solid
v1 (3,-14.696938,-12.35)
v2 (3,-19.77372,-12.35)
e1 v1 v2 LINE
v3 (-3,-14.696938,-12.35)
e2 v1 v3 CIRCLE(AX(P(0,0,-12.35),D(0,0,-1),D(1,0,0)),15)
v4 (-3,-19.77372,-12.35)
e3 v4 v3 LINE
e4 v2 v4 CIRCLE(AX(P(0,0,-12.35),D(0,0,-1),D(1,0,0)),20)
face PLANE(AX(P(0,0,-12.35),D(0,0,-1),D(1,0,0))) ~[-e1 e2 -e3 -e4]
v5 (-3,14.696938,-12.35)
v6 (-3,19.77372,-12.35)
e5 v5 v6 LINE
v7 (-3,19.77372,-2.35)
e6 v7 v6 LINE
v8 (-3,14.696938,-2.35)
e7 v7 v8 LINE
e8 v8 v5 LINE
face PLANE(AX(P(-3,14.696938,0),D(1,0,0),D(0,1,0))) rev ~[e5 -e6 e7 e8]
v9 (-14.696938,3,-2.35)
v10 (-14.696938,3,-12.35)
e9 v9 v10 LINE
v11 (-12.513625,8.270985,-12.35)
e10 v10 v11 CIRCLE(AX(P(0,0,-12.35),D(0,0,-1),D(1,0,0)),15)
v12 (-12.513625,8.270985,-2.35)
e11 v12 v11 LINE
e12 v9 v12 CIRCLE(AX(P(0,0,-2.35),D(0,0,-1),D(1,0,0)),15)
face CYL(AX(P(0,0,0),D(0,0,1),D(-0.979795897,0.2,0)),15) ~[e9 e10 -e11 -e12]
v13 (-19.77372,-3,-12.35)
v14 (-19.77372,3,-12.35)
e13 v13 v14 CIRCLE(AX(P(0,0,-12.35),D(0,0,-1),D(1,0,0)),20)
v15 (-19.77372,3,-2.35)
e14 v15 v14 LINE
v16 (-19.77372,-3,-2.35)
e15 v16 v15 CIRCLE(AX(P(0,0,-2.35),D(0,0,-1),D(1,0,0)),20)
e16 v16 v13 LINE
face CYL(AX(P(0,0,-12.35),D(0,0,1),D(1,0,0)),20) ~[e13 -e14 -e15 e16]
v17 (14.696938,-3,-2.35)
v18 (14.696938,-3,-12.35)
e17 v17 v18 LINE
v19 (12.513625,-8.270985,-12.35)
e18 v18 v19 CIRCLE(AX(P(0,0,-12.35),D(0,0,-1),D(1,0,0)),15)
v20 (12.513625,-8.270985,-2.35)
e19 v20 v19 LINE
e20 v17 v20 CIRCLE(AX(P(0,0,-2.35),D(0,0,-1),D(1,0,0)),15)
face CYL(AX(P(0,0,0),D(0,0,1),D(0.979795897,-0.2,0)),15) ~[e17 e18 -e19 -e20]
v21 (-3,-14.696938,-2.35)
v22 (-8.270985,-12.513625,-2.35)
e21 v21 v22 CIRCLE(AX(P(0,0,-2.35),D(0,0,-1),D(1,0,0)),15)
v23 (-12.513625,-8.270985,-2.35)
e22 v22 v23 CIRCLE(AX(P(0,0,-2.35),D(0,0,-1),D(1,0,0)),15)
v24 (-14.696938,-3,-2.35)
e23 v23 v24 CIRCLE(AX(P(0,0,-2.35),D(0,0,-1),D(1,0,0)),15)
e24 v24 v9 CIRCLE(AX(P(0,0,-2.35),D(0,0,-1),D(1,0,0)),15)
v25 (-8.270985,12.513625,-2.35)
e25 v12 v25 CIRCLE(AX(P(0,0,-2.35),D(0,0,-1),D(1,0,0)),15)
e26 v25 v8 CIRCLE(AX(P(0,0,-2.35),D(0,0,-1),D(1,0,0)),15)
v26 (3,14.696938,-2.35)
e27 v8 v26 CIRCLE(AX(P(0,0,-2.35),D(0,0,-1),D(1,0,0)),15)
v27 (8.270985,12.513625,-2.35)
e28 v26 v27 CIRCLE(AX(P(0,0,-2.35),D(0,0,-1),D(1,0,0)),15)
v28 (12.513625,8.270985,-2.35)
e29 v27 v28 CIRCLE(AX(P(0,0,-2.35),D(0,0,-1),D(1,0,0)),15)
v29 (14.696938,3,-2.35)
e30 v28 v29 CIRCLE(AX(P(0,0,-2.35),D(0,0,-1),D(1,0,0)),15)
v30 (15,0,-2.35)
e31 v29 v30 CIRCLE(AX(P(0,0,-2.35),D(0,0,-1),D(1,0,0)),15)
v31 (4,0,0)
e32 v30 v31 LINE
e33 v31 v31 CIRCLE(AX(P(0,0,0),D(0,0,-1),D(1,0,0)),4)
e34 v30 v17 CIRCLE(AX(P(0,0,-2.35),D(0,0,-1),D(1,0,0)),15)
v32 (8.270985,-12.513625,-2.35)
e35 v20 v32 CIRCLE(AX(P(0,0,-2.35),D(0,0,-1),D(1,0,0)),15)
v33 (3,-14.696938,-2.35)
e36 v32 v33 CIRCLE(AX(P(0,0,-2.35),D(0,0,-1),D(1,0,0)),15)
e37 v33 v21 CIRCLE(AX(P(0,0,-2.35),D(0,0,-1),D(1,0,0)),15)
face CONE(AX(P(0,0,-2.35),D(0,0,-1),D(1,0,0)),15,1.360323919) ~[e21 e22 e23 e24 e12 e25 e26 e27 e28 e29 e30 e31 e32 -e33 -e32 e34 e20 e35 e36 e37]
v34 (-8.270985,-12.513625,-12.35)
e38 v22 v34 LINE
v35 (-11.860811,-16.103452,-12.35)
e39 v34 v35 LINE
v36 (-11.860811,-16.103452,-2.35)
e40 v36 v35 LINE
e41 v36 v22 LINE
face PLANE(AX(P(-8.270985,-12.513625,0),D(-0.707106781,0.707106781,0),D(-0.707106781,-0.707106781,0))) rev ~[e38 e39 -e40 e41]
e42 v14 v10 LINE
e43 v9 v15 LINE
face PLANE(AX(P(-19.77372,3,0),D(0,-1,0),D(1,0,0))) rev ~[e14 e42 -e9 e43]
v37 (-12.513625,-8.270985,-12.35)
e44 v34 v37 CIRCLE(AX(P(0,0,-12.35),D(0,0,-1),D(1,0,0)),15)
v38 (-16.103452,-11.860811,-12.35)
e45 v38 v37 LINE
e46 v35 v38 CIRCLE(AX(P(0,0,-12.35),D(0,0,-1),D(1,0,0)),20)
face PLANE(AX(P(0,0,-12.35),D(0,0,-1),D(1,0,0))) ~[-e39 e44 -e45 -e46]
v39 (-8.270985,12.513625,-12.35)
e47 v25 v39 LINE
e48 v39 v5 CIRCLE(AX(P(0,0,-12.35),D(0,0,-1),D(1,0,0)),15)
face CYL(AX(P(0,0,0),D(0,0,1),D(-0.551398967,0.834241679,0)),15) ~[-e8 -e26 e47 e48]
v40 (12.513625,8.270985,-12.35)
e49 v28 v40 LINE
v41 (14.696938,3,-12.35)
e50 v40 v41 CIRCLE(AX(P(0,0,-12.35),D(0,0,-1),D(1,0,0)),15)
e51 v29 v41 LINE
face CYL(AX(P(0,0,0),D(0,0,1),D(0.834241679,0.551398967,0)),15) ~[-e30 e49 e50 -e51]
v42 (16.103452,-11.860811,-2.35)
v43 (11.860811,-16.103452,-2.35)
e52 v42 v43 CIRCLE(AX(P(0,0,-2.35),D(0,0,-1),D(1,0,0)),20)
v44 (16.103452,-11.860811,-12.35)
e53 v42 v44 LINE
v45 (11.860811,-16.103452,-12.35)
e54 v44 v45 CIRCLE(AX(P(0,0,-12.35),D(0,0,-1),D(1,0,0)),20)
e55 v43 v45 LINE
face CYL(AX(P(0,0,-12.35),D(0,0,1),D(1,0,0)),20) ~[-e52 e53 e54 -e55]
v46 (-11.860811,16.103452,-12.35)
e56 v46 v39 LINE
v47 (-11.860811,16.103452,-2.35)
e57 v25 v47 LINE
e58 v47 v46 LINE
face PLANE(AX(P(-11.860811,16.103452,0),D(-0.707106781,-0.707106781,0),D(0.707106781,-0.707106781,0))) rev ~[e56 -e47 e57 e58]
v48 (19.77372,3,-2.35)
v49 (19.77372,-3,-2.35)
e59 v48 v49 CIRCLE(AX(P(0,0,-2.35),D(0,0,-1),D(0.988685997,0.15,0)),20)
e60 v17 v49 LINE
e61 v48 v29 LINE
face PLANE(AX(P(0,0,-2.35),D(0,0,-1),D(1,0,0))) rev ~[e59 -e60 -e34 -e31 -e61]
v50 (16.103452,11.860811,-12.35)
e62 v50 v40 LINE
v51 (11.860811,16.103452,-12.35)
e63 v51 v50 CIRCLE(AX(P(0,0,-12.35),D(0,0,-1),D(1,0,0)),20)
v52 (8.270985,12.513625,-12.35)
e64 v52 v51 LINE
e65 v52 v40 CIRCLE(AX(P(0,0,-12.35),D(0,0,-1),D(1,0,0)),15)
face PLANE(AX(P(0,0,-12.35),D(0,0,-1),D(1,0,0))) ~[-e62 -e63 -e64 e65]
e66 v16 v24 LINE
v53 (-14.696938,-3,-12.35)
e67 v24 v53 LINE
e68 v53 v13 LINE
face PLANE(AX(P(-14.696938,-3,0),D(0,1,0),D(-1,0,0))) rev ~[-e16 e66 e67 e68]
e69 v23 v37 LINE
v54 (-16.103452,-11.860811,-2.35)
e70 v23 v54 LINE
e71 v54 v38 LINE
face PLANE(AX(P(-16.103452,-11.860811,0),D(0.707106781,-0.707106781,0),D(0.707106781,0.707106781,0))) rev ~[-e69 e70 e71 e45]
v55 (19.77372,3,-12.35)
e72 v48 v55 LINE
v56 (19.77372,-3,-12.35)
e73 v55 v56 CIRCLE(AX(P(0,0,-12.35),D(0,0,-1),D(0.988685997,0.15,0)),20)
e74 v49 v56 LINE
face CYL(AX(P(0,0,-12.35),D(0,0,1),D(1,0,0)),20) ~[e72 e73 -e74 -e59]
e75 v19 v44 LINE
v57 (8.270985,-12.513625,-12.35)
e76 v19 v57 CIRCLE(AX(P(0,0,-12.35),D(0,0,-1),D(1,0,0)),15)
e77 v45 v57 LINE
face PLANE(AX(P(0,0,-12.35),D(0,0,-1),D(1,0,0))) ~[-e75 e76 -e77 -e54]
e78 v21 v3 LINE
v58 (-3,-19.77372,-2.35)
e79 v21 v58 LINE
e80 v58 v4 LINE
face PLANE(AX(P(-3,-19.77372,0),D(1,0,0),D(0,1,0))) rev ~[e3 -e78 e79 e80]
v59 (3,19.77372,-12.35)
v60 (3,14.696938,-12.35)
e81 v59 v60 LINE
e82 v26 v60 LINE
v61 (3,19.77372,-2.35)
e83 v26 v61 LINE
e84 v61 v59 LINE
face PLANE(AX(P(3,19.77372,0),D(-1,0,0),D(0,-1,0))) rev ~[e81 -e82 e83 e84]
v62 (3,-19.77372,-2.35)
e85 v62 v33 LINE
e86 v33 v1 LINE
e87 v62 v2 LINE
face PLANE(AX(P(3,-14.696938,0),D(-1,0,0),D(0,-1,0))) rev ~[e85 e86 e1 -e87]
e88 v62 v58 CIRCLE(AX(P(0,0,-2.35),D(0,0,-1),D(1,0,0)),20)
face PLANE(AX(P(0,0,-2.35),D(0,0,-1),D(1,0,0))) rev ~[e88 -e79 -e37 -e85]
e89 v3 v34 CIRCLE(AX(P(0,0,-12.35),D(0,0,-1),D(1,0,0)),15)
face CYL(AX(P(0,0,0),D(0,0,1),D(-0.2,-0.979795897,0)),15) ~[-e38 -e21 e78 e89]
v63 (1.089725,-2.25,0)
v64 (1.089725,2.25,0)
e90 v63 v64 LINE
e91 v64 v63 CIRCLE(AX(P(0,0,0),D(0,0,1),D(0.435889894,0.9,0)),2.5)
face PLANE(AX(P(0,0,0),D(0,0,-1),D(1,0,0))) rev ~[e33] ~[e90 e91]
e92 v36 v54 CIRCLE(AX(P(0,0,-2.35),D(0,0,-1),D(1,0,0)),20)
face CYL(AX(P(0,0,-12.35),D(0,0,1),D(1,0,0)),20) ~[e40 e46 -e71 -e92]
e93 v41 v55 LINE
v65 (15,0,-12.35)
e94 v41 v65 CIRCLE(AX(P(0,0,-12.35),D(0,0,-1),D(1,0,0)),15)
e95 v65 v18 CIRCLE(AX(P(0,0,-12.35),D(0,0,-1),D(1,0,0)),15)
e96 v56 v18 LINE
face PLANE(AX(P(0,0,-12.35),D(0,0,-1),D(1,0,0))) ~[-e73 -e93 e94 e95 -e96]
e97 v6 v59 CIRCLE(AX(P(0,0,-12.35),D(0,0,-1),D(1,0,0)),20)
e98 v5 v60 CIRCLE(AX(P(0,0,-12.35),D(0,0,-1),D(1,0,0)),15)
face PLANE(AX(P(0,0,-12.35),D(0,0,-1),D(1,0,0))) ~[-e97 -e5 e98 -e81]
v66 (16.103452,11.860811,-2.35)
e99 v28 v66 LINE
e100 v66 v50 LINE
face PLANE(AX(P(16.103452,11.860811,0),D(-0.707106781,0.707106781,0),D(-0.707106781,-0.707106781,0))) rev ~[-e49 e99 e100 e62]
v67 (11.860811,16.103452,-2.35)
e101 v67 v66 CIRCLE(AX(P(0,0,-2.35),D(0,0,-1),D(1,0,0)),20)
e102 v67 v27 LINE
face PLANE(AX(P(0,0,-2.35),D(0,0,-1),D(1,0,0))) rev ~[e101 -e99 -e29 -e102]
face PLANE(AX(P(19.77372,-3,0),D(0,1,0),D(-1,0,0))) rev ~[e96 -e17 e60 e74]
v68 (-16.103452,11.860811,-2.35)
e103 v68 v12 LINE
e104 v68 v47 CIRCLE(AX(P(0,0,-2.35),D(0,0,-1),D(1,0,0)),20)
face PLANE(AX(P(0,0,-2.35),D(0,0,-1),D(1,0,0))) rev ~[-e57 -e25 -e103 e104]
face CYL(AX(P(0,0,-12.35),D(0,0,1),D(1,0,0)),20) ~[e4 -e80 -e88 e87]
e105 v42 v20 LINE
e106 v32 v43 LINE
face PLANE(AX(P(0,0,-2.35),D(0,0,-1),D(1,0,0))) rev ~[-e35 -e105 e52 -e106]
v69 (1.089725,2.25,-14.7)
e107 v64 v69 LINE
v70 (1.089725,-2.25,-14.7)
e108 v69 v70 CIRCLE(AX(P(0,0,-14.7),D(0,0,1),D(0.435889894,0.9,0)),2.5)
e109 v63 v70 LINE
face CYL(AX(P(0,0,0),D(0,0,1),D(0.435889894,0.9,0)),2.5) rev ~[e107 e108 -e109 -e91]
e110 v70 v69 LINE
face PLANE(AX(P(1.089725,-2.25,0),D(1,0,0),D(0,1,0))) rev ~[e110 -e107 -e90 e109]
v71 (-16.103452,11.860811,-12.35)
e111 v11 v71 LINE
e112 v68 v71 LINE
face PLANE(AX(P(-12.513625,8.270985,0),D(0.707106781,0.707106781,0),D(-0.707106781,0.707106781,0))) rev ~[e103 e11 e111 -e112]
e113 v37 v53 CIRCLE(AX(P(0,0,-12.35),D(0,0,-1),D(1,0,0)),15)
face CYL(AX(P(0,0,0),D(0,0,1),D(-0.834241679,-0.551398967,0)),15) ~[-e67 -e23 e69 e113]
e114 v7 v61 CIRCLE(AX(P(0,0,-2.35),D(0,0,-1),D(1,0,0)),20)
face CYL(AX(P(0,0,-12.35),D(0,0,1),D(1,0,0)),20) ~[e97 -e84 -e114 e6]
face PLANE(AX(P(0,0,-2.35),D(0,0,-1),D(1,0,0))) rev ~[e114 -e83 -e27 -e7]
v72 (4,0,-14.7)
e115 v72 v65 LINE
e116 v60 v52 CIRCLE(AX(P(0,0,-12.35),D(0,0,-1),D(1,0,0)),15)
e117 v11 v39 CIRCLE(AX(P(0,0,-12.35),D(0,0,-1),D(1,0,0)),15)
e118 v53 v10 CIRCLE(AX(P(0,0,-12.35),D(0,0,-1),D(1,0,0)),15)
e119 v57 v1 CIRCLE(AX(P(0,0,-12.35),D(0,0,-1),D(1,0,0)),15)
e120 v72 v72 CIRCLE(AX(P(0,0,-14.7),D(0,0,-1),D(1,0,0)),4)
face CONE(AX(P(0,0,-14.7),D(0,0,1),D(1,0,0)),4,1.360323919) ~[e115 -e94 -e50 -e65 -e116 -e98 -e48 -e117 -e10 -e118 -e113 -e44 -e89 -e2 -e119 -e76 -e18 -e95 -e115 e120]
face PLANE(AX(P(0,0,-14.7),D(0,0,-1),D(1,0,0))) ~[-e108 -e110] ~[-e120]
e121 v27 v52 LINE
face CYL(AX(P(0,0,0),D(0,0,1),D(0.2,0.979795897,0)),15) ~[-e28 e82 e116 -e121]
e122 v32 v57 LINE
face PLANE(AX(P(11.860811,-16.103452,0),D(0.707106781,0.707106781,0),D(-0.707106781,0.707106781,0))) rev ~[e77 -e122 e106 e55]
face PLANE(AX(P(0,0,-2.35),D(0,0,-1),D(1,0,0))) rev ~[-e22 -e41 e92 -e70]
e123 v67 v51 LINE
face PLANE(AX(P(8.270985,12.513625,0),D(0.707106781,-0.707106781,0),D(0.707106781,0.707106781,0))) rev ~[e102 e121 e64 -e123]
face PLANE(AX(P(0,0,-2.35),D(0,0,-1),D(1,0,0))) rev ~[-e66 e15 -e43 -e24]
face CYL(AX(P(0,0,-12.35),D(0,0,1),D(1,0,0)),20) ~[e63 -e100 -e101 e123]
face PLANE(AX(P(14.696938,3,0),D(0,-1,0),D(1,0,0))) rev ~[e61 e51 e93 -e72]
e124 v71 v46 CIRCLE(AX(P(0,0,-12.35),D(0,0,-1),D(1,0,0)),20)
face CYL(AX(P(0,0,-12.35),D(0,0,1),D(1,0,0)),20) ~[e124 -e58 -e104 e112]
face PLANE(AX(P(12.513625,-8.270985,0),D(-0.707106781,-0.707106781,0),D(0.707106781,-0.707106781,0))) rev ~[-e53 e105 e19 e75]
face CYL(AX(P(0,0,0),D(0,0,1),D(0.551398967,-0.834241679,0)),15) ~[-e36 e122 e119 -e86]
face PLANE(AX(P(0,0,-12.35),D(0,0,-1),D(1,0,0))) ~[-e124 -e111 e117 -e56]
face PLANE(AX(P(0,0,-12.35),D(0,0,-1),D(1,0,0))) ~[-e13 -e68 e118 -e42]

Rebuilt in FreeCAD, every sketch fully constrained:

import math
import FreeCAD as App
import Part
import Sketcher

V = App.Vector

doc = App.newDocument("Part")
body = doc.addObject("PartDesign::Body", "Body")

# Sketch on YZ plane
sketch1 = body.newObject("Sketcher::SketchObject", "Sketch")
sketch1.AttachmentSupport = (doc.getObject("YZ_Plane"), [""])
sketch1.MapMode = "FlatFace"
sketch1.addGeometry([
    Part.LineSegment(V(0, 0, 0), V(0, -14.7, 0)),  # 0
    Part.LineSegment(V(0, -14.7, 0), V(4, -14.7, 0)),  # 1
    Part.LineSegment(V(4, -14.7, 0), V(15, -12.35, 0)),  # 2
    Part.LineSegment(V(15, -12.35, 0), V(20, -12.35, 0)),  # 3
    Part.LineSegment(V(20, -12.35, 0), V(20, -2.35, 0)),  # 4
    Part.LineSegment(V(20, -2.35, 0), V(15, -2.35, 0)),  # 5
    Part.LineSegment(V(15, -2.35, 0), V(4, 0, 0)),  # 6
    Part.LineSegment(V(4, 0, 0), V(0, 0, 0)),  # 7
], False)
sketch1.addConstraint([
    Sketcher.Constraint("Coincident", 0, 2, 1, 1),
    Sketcher.Constraint("Coincident", 1, 2, 2, 1),
    Sketcher.Constraint("Coincident", 2, 2, 3, 1),
    Sketcher.Constraint("Coincident", 3, 2, 4, 1),
    Sketcher.Constraint("Coincident", 4, 2, 5, 1),
    Sketcher.Constraint("Coincident", 5, 2, 6, 1),
    Sketcher.Constraint("Coincident", 6, 2, 7, 1),
    Sketcher.Constraint("Coincident", 7, 2, 0, 1),
    Sketcher.Constraint("Vertical", 0),
    Sketcher.Constraint("Horizontal", 1),
    Sketcher.Constraint("Horizontal", 3),
    Sketcher.Constraint("Vertical", 4),
    Sketcher.Constraint("Horizontal", 5),
    Sketcher.Constraint("Horizontal", 7),
    Sketcher.Constraint("Coincident", 7, 2, -1, 1),
    Sketcher.Constraint("Vertical", 2, 2, 5, 2),
    Sketcher.Constraint("Vertical", 1, 2, 6, 2),
    Sketcher.Constraint("Equal", 2, 6),
    Sketcher.Constraint("DistanceX", 1, 1, 1, 2, 4.0),
    Sketcher.Constraint("DistanceX", 3, 1, 3, 2, 5.0),
    Sketcher.Constraint("DistanceY", 4, 1, 4, 2, 10.0),
    Sketcher.Constraint("DistanceY", 0, 2, 0, 1, 14.7),
    Sketcher.Constraint("DistanceX", -1, 1, 2, 2, 15.0),
])
revolution = body.newObject("PartDesign::Revolution", "Revolution")
revolution.Profile = sketch1
revolution.ReferenceAxis = (sketch1, ["V_Axis"])
revolution.Angle = 360

# Sketch on XY plane
sketch2 = body.newObject("Sketcher::SketchObject", "Sketch001")
sketch2.AttachmentSupport = (doc.getObject("XY_Plane"), [""])
sketch2.MapMode = "FlatFace"
sketch2.addGeometry([
    Part.Circle(V(0, 0, 0), V(0, 0, 1), 25),  # 0
    Part.ArcOfCircle(Part.Circle(V(0, 0, 0), V(0, 0, 1), 20), math.radians(171.373073), math.radians(188.626927)),  # 1
    Part.LineSegment(V(-19.77372, 3, 0), V(-14.696938, 3, 0)),  # 2
    Part.ArcOfCircle(Part.Circle(V(0, 0, 0), V(0, 0, 1), 15), math.radians(146.536959), math.radians(168.463041)),  # 3
    Part.LineSegment(V(-12.513625, 8.270985, 0), V(-16.103452, 11.860811, 0)),  # 4
    Part.ArcOfCircle(Part.Circle(V(0, 0, 0), V(0, 0, 1), 20), math.radians(126.373073), math.radians(143.626927)),  # 5
    Part.LineSegment(V(-11.860811, 16.103452, 0), V(-8.270985, 12.513625, 0)),  # 6
    Part.ArcOfCircle(Part.Circle(V(0, 0, 0), V(0, 0, 1), 15), math.radians(101.536959), math.radians(123.463041)),  # 7
    Part.LineSegment(V(-3, 14.696938, 0), V(-3, 19.77372, 0)),  # 8
    Part.ArcOfCircle(Part.Circle(V(0, 0, 0), V(0, 0, 1), 20), math.radians(81.373073), math.radians(98.626927)),  # 9
    Part.LineSegment(V(3, 19.77372, 0), V(3, 14.696938, 0)),  # 10
    Part.ArcOfCircle(Part.Circle(V(0, 0, 0), V(0, 0, 1), 15), math.radians(56.536959), math.radians(78.463041)),  # 11
    Part.LineSegment(V(8.270985, 12.513625, 0), V(11.860811, 16.103452, 0)),  # 12
    Part.ArcOfCircle(Part.Circle(V(0, 0, 0), V(0, 0, 1), 20), math.radians(36.373073), math.radians(53.626927)),  # 13
    Part.LineSegment(V(16.103452, 11.860811, 0), V(12.513625, 8.270985, 0)),  # 14
    Part.ArcOfCircle(Part.Circle(V(0, 0, 0), V(0, 0, 1), 15), math.radians(11.536959), math.radians(33.463041)),  # 15
    Part.LineSegment(V(14.696938, 3, 0), V(19.77372, 3, 0)),  # 16
    Part.ArcOfCircle(Part.Circle(V(0, 0, 0), V(0, 0, 1), 20), math.radians(-8.626927), math.radians(8.626927)),  # 17
    Part.LineSegment(V(19.77372, -3, 0), V(14.696938, -3, 0)),  # 18
    Part.ArcOfCircle(Part.Circle(V(0, 0, 0), V(0, 0, 1), 15), math.radians(-33.463041), math.radians(-11.536959)),  # 19
    Part.LineSegment(V(12.513625, -8.270985, 0), V(16.103452, -11.860811, 0)),  # 20
    Part.ArcOfCircle(Part.Circle(V(0, 0, 0), V(0, 0, 1), 20), math.radians(-53.626927), math.radians(-36.373073)),  # 21
    Part.LineSegment(V(11.860811, -16.103452, 0), V(8.270985, -12.513625, 0)),  # 22
    Part.ArcOfCircle(Part.Circle(V(0, 0, 0), V(0, 0, 1), 15), math.radians(-78.463041), math.radians(-56.536959)),  # 23
    Part.LineSegment(V(3, -14.696938, 0), V(3, -19.77372, 0)),  # 24
    Part.ArcOfCircle(Part.Circle(V(0, 0, 0), V(0, 0, 1), 20), math.radians(-98.626927), math.radians(-81.373073)),  # 25
    Part.LineSegment(V(-3, -19.77372, 0), V(-3, -14.696938, 0)),  # 26
    Part.ArcOfCircle(Part.Circle(V(0, 0, 0), V(0, 0, 1), 15), math.radians(-123.463041), math.radians(-101.536959)),  # 27
    Part.LineSegment(V(-8.270985, -12.513625, 0), V(-11.860811, -16.103452, 0)),  # 28
    Part.ArcOfCircle(Part.Circle(V(0, 0, 0), V(0, 0, 1), 20), math.radians(-143.626927), math.radians(-126.373073)),  # 29
    Part.LineSegment(V(-16.103452, -11.860811, 0), V(-12.513625, -8.270985, 0)),  # 30
    Part.ArcOfCircle(Part.Circle(V(0, 0, 0), V(0, 0, 1), 15), math.radians(-168.463041), math.radians(-146.536959)),  # 31
    Part.LineSegment(V(-14.696938, -3, 0), V(-19.77372, -3, 0)),  # 32
], False)
sketch2.addConstraint([
    Sketcher.Constraint("Coincident", 1, 1, 2, 1),
    Sketcher.Constraint("Coincident", 2, 2, 3, 2),
    Sketcher.Constraint("Coincident", 3, 1, 4, 1),
    Sketcher.Constraint("Coincident", 4, 2, 5, 2),
    Sketcher.Constraint("Coincident", 5, 1, 6, 1),
    Sketcher.Constraint("Coincident", 6, 2, 7, 2),
    Sketcher.Constraint("Coincident", 7, 1, 8, 1),
    Sketcher.Constraint("Coincident", 8, 2, 9, 2),
    Sketcher.Constraint("Coincident", 9, 1, 10, 1),
    Sketcher.Constraint("Coincident", 10, 2, 11, 2),
    Sketcher.Constraint("Coincident", 11, 1, 12, 1),
    Sketcher.Constraint("Coincident", 12, 2, 13, 2),
    Sketcher.Constraint("Coincident", 13, 1, 14, 1),
    Sketcher.Constraint("Coincident", 14, 2, 15, 2),
    Sketcher.Constraint("Coincident", 15, 1, 16, 1),
    Sketcher.Constraint("Coincident", 16, 2, 17, 2),
    Sketcher.Constraint("Coincident", 17, 1, 18, 1),
    Sketcher.Constraint("Coincident", 18, 2, 19, 2),
    Sketcher.Constraint("Coincident", 19, 1, 20, 1),
    Sketcher.Constraint("Coincident", 20, 2, 21, 2),
    Sketcher.Constraint("Coincident", 21, 1, 22, 1),
    Sketcher.Constraint("Coincident", 22, 2, 23, 2),
    Sketcher.Constraint("Coincident", 23, 1, 24, 1),
    Sketcher.Constraint("Coincident", 24, 2, 25, 2),
    Sketcher.Constraint("Coincident", 25, 1, 26, 1),
    Sketcher.Constraint("Coincident", 26, 2, 27, 2),
    Sketcher.Constraint("Coincident", 27, 1, 28, 1),
    Sketcher.Constraint("Coincident", 28, 2, 29, 2),
    Sketcher.Constraint("Coincident", 29, 1, 30, 1),
    Sketcher.Constraint("Coincident", 30, 2, 31, 2),
    Sketcher.Constraint("Coincident", 31, 1, 32, 1),
    Sketcher.Constraint("Coincident", 32, 2, 1, 2),
    Sketcher.Constraint("Horizontal", 2),
    Sketcher.Constraint("Vertical", 8),
    Sketcher.Constraint("Vertical", 10),
    Sketcher.Constraint("Horizontal", 16),
    Sketcher.Constraint("Horizontal", 18),
    Sketcher.Constraint("Vertical", 24),
    Sketcher.Constraint("Vertical", 26),
    Sketcher.Constraint("Horizontal", 32),
    Sketcher.Constraint("Coincident", 0, 3, -1, 1),
    Sketcher.Constraint("Coincident", 1, 3, -1, 1),
    Sketcher.Constraint("Coincident", 3, 3, -1, 1),
    Sketcher.Constraint("Coincident", 5, 3, -1, 1),
    Sketcher.Constraint("Coincident", 7, 3, -1, 1),
    Sketcher.Constraint("Coincident", 9, 3, -1, 1),
    Sketcher.Constraint("Coincident", 11, 3, -1, 1),
    Sketcher.Constraint("Coincident", 13, 3, -1, 1),
    Sketcher.Constraint("Coincident", 15, 3, -1, 1),
    Sketcher.Constraint("Coincident", 17, 3, -1, 1),
    Sketcher.Constraint("Coincident", 19, 3, -1, 1),
    Sketcher.Constraint("Coincident", 21, 3, -1, 1),
    Sketcher.Constraint("Coincident", 23, 3, -1, 1),
    Sketcher.Constraint("Coincident", 25, 3, -1, 1),
    Sketcher.Constraint("Coincident", 27, 3, -1, 1),
    Sketcher.Constraint("Coincident", 29, 3, -1, 1),
    Sketcher.Constraint("Coincident", 31, 3, -1, 1),
    Sketcher.Constraint("Equal", 1, 5),
    Sketcher.Constraint("Equal", 3, 7),
    Sketcher.Constraint("Equal", 5, 9),
    Sketcher.Constraint("Equal", 7, 11),
    Sketcher.Constraint("Equal", 9, 13),
    Sketcher.Constraint("Equal", 11, 15),
    Sketcher.Constraint("Equal", 13, 17),
    Sketcher.Constraint("Equal", 15, 19),
    Sketcher.Constraint("Equal", 17, 21),
    Sketcher.Constraint("Equal", 19, 23),
    Sketcher.Constraint("Equal", 21, 25),
    Sketcher.Constraint("Equal", 23, 27),
    Sketcher.Constraint("Equal", 25, 29),
    Sketcher.Constraint("Equal", 27, 31),
    Sketcher.Constraint("Parallel", 4, 6),
    Sketcher.Constraint("Perpendicular", 6, 12),
    Sketcher.Constraint("Parallel", 12, 14),
    Sketcher.Constraint("Perpendicular", 14, 20),
    Sketcher.Constraint("Parallel", 20, 22),
    Sketcher.Constraint("Perpendicular", 22, 28),
    Sketcher.Constraint("Parallel", 28, 30),
    Sketcher.Constraint("Horizontal", 8, 2, 9, 1),
    Sketcher.Constraint("Horizontal", 6, 2, 11, 1),
    Sketcher.Constraint("Horizontal", 5, 1, 12, 2),
    Sketcher.Constraint("Horizontal", 4, 2, 13, 1),
    Sketcher.Constraint("Horizontal", 2, 2, 15, 1),
    Sketcher.Constraint("Horizontal", 24, 2, 25, 1),
    Sketcher.Constraint("Horizontal", 22, 2, 27, 1),
    Sketcher.Constraint("Horizontal", 20, 2, 29, 1),
    Sketcher.Constraint("Horizontal", 18, 2, 31, 1),
    Sketcher.Constraint("Vertical", 16, 2, 17, 1),
    Sketcher.Constraint("Vertical", 14, 2, 19, 1),
    Sketcher.Constraint("Vertical", 12, 2, 21, 1),
    Sketcher.Constraint("Vertical", 10, 2, 23, 1),
    Sketcher.Constraint("Equal", 32, 8),
    Sketcher.Constraint("Equal", 4, 6),
    Sketcher.Constraint("Diameter", 0, 50.0),
    Sketcher.Constraint("Radius", 1, 20.0),
    Sketcher.Constraint("Radius", 3, 15.0),
    Sketcher.Constraint("DistanceY", -1, 1, 1, 1, 3.0),
    Sketcher.Constraint("Distance", 4, 5.076781),
])
pocket1 = body.newObject("PartDesign::Pocket", "Pocket")
pocket1.Profile = sketch2
pocket1.Length = 30

# Sketch on XY plane
sketch3 = body.newObject("Sketcher::SketchObject", "Sketch002")
sketch3.AttachmentSupport = (doc.getObject("XY_Plane"), [""])
sketch3.MapMode = "FlatFace"
sketch3.addGeometry([
    Part.LineSegment(V(1.089725, -2.25, 0), V(1.089725, 2.25, 0)),
    Part.ArcOfCircle(Part.Circle(V(0, 0, 0), V(0, 0, 1), 2.5), math.radians(64.158067), math.radians(295.841933)),
], False)
sketch3.addConstraint([
    Sketcher.Constraint("Coincident", 0, 1, 1, 2),
    Sketcher.Constraint("Coincident", 1, 1, 0, 2),
    Sketcher.Constraint("Vertical", 0),
    Sketcher.Constraint("Coincident", 1, 3, -1, 1),
    Sketcher.Constraint("Radius", 1, 2.5),
    Sketcher.Constraint("DistanceY", 0, 1, 0, 2, 4.5),
])
pocket2 = body.newObject("PartDesign::Pocket", "Pocket001")
pocket2.Profile = sketch3
pocket2.Length = 20

doc.recompute()
